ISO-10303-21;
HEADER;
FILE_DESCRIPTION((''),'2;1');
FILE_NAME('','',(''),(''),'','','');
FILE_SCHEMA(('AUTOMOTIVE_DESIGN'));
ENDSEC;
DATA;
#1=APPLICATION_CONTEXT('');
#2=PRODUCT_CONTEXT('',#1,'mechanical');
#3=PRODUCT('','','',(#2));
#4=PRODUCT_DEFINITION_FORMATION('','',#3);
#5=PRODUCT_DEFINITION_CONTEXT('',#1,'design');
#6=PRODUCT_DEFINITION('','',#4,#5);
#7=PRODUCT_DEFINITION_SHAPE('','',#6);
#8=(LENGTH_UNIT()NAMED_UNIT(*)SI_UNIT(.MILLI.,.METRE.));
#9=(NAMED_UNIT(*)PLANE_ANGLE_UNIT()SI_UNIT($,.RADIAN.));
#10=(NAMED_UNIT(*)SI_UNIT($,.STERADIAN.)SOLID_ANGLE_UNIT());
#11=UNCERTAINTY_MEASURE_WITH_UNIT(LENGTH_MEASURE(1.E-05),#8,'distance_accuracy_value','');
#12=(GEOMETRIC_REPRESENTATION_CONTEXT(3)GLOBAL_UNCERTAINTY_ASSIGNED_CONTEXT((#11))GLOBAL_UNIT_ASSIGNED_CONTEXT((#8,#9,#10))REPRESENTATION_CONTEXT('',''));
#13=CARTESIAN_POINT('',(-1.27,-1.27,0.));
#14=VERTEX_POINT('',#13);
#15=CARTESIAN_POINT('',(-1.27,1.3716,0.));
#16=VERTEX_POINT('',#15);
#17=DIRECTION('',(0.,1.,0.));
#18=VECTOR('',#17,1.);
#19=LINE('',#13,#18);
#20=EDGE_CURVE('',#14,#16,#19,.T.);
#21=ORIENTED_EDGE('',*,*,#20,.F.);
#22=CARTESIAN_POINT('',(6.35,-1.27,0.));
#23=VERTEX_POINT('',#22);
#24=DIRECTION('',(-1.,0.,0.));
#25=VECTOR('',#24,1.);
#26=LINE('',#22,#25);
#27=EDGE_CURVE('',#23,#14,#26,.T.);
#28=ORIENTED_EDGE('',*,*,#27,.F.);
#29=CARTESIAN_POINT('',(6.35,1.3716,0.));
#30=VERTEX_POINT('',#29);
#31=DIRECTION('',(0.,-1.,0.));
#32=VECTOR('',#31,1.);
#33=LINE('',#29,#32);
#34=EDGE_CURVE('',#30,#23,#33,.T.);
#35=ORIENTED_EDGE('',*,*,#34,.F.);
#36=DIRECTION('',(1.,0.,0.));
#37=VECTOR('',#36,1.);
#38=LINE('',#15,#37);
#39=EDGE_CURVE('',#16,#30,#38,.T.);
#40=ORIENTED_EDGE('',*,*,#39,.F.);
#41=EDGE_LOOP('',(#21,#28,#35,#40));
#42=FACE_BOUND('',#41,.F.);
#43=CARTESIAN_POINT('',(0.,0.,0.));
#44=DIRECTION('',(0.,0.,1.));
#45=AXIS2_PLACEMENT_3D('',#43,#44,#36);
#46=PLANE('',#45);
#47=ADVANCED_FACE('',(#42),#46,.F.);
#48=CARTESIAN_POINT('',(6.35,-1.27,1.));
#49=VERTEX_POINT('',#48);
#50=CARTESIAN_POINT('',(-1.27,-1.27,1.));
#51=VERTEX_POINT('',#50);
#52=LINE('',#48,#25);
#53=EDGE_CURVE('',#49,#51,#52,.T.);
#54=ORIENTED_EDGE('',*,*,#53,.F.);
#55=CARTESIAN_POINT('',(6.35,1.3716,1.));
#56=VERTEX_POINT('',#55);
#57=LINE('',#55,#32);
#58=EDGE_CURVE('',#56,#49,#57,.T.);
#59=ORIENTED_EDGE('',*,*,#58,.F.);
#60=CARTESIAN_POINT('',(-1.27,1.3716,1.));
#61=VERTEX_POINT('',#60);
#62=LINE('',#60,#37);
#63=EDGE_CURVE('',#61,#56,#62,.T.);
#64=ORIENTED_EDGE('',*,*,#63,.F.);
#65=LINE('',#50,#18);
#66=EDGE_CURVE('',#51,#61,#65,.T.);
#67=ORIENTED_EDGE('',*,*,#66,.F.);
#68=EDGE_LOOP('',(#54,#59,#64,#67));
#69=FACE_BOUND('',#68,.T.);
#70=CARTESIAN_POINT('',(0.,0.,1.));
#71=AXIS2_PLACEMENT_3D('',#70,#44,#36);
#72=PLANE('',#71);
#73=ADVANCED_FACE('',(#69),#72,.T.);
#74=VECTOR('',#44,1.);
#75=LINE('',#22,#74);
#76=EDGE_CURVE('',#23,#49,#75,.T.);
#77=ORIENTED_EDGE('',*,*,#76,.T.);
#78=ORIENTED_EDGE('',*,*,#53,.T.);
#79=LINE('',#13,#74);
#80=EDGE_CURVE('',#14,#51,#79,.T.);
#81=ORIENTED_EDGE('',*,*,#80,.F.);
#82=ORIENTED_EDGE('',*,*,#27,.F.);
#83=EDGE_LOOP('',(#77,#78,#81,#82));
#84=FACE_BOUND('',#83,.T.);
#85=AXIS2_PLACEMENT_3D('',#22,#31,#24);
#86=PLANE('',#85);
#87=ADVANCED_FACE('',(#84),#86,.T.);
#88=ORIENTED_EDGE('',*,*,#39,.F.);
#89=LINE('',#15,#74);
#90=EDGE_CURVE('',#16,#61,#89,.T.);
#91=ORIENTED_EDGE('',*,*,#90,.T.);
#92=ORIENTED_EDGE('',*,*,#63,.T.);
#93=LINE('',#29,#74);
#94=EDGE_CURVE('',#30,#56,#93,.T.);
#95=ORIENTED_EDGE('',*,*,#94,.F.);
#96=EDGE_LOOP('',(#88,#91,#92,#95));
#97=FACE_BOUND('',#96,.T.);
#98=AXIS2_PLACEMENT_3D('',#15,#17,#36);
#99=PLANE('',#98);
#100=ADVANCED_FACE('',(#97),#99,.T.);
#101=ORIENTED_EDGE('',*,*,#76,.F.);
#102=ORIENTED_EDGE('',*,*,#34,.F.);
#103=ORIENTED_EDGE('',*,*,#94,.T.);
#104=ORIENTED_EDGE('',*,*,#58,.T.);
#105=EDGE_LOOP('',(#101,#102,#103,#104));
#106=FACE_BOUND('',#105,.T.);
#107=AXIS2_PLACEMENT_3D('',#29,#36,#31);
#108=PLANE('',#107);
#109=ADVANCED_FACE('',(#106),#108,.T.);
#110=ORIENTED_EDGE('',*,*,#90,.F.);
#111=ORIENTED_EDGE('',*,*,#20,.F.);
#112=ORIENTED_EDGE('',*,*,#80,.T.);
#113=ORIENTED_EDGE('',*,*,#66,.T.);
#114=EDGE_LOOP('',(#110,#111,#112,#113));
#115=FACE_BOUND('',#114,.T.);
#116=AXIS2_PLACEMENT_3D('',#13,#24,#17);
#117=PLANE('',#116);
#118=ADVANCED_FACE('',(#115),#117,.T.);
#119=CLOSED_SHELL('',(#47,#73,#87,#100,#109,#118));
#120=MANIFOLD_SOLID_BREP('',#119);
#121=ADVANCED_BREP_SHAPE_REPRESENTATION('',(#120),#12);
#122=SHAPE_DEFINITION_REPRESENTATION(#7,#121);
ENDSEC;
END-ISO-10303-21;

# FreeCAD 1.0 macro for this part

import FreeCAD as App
import Part
import Sketcher

V = App.Vector
Q = App.Units.Quantity


def add_polygon(sketch, points):
    """Adds a closed chain of lines whose ends are joined by coincident constraints."""
    first, n = sketch.GeometryCount, len(points)
    for a, b in zip(points, points[1:] + points[:1]):
        sketch.addGeometry(Part.LineSegment(App.Vector(*a, 0), App.Vector(*b, 0)), False)
    for i in range(n):
        sketch.addConstraint(Sketcher.Constraint("Coincident", first + i, 2, first + (i + 1) % n, 1))

doc = App.newDocument("Part")
body = doc.addObject("PartDesign::Body", "Body")

# Sketch on XY plane
sketch1 = body.newObject("Sketcher::SketchObject", "Sketch")
sketch1.AttachmentSupport = (doc.getObject("XY_Plane"), [""])
sketch1.MapMode = "FlatFace"
add_polygon(sketch1, [(6.35, 1.3716), (-1.27, 1.3716), (-1.27, -1.27), (6.35, -1.27)])  # lines 0-3
sketch1.addConstraint([
    Sketcher.Constraint("Horizontal", 0),
    Sketcher.Constraint("Vertical", 1),
    Sketcher.Constraint("Horizontal", 2),
    Sketcher.Constraint("Vertical", 3),
    Sketcher.Constraint("DistanceX", 0, 2, 0, 1, Q("0.3 in")),
    Sketcher.Constraint("DistanceY", 1, 2, 1, 1, Q("0.104 in")),
    Sketcher.Constraint("DistanceX", 0, 2, -1, 1, Q("0.05 in")),
    Sketcher.Constraint("DistanceY", 1, 2, -1, 1, Q("0.05 in")),
])
pad1 = body.newObject("PartDesign::Pad", "Pad")
pad1.Profile = sketch1
pad1.Length = 1

doc.recompute()
